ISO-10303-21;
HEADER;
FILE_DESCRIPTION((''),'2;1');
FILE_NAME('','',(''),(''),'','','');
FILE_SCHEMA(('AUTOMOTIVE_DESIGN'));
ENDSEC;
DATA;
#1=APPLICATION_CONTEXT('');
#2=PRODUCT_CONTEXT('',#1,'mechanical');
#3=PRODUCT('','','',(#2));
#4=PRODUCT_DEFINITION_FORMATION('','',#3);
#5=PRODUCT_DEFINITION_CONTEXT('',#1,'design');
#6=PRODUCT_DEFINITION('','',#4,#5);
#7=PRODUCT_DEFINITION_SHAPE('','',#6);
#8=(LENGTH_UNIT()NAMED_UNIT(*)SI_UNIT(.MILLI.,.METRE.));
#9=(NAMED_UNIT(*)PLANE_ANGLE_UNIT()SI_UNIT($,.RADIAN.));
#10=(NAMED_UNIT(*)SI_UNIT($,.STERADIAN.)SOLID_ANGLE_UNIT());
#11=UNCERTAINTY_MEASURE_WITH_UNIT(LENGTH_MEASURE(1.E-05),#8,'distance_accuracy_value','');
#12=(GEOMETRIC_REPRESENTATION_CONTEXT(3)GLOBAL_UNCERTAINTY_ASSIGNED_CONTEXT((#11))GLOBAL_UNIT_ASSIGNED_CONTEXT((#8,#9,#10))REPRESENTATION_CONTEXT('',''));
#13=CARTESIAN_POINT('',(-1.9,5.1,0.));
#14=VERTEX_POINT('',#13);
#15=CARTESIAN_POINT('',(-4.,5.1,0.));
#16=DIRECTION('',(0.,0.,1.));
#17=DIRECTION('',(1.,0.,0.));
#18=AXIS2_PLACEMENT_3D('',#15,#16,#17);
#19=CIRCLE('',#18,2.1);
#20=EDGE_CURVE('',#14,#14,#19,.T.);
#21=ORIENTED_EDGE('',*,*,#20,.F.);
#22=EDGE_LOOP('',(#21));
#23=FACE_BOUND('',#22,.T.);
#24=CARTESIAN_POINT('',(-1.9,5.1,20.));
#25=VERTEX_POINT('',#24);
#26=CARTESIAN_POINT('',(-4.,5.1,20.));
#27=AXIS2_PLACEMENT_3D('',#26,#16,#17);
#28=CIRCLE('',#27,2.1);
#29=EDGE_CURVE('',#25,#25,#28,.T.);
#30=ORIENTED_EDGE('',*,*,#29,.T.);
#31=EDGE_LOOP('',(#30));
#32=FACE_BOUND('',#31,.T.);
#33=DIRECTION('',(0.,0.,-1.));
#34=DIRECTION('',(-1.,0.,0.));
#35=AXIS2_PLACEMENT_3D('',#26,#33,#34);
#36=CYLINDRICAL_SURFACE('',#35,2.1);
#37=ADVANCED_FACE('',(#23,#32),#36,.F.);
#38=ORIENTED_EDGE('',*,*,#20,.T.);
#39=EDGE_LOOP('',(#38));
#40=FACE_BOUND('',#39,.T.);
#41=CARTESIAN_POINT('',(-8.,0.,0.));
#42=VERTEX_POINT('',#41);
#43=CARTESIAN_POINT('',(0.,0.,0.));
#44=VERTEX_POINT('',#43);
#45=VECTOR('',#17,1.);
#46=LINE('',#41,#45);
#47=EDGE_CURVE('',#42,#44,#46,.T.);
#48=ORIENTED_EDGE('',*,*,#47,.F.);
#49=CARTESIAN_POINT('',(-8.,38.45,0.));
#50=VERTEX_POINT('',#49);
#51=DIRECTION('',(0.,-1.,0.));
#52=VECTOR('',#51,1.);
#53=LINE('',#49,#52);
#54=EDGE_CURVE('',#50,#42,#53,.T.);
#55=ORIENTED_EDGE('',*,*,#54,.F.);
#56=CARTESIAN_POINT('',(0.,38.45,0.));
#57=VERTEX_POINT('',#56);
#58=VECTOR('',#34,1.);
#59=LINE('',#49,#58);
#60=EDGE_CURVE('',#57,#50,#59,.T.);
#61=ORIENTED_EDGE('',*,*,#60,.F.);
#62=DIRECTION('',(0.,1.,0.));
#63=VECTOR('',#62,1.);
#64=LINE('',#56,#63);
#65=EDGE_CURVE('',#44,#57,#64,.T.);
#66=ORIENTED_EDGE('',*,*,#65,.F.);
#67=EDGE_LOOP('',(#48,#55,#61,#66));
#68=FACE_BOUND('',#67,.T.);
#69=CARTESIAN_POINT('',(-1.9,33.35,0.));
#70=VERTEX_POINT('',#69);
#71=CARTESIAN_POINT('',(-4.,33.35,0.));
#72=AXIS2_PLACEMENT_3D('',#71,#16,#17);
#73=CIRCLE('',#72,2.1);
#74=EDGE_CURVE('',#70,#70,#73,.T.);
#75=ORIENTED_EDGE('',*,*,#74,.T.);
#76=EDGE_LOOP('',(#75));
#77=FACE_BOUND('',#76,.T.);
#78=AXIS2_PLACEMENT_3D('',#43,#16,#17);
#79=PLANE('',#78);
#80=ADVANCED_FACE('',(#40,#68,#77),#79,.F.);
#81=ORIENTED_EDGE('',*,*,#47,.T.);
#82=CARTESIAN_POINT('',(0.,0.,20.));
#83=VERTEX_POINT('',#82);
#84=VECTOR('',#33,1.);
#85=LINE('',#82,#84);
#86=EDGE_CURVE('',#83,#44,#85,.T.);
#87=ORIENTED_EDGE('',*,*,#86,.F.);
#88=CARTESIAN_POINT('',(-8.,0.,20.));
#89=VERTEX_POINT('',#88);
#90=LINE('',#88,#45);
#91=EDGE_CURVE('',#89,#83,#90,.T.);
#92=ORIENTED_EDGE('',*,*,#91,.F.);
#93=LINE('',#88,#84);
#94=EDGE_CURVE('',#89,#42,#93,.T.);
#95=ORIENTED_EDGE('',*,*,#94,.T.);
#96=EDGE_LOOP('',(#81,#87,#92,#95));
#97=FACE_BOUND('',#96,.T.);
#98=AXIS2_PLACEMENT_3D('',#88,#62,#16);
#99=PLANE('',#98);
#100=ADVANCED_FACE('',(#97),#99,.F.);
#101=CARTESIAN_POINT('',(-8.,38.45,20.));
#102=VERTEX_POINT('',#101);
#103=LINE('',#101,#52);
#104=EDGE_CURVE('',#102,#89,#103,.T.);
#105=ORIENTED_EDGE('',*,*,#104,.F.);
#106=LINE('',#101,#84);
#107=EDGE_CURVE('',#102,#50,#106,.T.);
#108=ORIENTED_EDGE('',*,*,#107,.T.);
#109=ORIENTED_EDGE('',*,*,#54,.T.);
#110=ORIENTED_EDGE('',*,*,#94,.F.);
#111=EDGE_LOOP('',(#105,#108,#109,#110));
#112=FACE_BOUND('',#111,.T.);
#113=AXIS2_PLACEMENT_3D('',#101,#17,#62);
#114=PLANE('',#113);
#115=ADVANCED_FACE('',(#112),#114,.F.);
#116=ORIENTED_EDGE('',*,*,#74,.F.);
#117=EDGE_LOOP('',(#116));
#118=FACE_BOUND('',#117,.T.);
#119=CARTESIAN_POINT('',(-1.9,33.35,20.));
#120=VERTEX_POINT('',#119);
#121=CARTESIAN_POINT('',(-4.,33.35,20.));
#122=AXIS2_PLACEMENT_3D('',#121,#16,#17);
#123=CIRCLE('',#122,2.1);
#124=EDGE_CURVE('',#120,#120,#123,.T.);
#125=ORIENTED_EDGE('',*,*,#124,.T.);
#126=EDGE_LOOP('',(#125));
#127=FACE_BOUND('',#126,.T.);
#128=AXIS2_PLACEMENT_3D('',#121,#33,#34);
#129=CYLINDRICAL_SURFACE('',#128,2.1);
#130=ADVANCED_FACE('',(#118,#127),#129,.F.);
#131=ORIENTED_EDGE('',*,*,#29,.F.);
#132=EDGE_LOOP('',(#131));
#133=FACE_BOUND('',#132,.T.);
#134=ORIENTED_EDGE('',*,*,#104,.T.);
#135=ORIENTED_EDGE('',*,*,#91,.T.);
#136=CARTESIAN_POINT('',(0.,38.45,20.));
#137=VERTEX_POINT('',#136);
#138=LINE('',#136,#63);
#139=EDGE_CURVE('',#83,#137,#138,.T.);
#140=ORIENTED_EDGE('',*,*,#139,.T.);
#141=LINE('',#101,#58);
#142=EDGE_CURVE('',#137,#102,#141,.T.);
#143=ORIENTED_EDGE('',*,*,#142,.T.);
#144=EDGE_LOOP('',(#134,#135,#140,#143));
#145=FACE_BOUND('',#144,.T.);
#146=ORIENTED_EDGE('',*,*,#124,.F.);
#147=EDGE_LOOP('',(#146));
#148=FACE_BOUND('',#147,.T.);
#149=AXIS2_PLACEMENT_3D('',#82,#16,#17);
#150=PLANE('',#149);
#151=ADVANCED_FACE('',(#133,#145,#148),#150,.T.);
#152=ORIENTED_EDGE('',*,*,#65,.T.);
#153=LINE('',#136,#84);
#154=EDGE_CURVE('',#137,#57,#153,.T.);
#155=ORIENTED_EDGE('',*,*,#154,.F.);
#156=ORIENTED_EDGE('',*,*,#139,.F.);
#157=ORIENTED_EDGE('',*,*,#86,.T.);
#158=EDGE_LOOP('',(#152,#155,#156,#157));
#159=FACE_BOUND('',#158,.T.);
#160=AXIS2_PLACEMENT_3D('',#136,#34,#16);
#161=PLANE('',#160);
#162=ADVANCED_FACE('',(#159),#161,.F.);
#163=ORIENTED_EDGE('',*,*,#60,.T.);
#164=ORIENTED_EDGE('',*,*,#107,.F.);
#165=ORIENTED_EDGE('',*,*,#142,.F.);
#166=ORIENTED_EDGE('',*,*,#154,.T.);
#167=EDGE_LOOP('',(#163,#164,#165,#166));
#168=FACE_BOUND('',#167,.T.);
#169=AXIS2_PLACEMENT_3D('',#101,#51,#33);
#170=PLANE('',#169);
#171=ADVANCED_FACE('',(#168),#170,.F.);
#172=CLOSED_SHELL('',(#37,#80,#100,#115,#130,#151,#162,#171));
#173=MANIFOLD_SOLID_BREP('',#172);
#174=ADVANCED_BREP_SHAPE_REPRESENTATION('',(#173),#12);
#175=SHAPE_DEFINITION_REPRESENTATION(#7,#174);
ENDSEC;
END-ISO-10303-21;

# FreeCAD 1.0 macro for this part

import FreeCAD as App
import Part
import Sketcher
from FreeCAD import Vector
Q = App.Units.Quantity

doc = App.newDocument("Part")
body = doc.addObject("PartDesign::Body", "Body")

# Sketch on XY plane
sketch1 = doc.addObject("Sketcher::SketchObject", "Sketch")
body.addObject(sketch1)
sketch1.AttachmentSupport = (doc.XY_Plane, [""])
sketch1.MapMode = "FlatFace"
sketch1.addGeometry(Part.LineSegment(Vector(-8, 38.45, 0), Vector(-8, 0, 0)), False)
sketch1.addGeometry(Part.LineSegment(Vector(-8, 0, 0), Vector(0, 0, 0)), False)
sketch1.addGeometry(Part.LineSegment(Vector(0, 0, 0), Vector(0, 38.45, 0)), False)
sketch1.addGeometry(Part.LineSegment(Vector(0, 38.45, 0), Vector(-8, 38.45, 0)), False)
sketch1.addGeometry(Part.Circle(Vector(-4, 5.1, 0), Vector(0, 0, 1), 2.1), False)
sketch1.addGeometry(Part.Circle(Vector(-4, 33.35, 0), Vector(0, 0, 1), 2.1), False)
sketch1.addConstraint(Sketcher.Constraint("Coincident", 0, 2, 1, 1))
sketch1.addConstraint(Sketcher.Constraint("Coincident", 1, 2, 2, 1))
sketch1.addConstraint(Sketcher.Constraint("Coincident", 2, 2, 3, 1))
sketch1.addConstraint(Sketcher.Constraint("Coincident", 3, 2, 0, 1))
sketch1.addConstraint(Sketcher.Constraint("Vertical", 0))
sketch1.addConstraint(Sketcher.Constraint("Horizontal", 1))
sketch1.addConstraint(Sketcher.Constraint("Vertical", 2))
sketch1.addConstraint(Sketcher.Constraint("Horizontal", 3))
sketch1.addConstraint(Sketcher.Constraint("Coincident", 1, 2, -1, 1))
sketch1.addConstraint(Sketcher.Constraint("Equal", 4, 5))
sketch1.addConstraint(Sketcher.Constraint("Vertical", 4, 3, 5, 3))
sketch1.addConstraint(Sketcher.Constraint("Diameter", 4, Q("4.2 mm")))
sketch1.addConstraint(Sketcher.Constraint("DistanceX", 1, 1, 1, 2, Q("8 mm")))
sketch1.addConstraint(Sketcher.Constraint("DistanceX", 4, 3, -1, 1, Q("4 mm")))
sketch1.addConstraint(Sketcher.Constraint("DistanceY", 0, 2, 0, 1, Q("38.45 mm")))
sketch1.addConstraint(Sketcher.Constraint("DistanceY", -1, 1, 4, 3, Q("5.1 mm")))
sketch1.addConstraint(Sketcher.Constraint("DistanceY", 5, 3, 2, 2, Q("5.1 mm")))
pad1 = doc.addObject("PartDesign::Pad", "Pad")
body.addObject(pad1)
pad1.Profile = sketch1
pad1.Length = 20

doc.recompute()
